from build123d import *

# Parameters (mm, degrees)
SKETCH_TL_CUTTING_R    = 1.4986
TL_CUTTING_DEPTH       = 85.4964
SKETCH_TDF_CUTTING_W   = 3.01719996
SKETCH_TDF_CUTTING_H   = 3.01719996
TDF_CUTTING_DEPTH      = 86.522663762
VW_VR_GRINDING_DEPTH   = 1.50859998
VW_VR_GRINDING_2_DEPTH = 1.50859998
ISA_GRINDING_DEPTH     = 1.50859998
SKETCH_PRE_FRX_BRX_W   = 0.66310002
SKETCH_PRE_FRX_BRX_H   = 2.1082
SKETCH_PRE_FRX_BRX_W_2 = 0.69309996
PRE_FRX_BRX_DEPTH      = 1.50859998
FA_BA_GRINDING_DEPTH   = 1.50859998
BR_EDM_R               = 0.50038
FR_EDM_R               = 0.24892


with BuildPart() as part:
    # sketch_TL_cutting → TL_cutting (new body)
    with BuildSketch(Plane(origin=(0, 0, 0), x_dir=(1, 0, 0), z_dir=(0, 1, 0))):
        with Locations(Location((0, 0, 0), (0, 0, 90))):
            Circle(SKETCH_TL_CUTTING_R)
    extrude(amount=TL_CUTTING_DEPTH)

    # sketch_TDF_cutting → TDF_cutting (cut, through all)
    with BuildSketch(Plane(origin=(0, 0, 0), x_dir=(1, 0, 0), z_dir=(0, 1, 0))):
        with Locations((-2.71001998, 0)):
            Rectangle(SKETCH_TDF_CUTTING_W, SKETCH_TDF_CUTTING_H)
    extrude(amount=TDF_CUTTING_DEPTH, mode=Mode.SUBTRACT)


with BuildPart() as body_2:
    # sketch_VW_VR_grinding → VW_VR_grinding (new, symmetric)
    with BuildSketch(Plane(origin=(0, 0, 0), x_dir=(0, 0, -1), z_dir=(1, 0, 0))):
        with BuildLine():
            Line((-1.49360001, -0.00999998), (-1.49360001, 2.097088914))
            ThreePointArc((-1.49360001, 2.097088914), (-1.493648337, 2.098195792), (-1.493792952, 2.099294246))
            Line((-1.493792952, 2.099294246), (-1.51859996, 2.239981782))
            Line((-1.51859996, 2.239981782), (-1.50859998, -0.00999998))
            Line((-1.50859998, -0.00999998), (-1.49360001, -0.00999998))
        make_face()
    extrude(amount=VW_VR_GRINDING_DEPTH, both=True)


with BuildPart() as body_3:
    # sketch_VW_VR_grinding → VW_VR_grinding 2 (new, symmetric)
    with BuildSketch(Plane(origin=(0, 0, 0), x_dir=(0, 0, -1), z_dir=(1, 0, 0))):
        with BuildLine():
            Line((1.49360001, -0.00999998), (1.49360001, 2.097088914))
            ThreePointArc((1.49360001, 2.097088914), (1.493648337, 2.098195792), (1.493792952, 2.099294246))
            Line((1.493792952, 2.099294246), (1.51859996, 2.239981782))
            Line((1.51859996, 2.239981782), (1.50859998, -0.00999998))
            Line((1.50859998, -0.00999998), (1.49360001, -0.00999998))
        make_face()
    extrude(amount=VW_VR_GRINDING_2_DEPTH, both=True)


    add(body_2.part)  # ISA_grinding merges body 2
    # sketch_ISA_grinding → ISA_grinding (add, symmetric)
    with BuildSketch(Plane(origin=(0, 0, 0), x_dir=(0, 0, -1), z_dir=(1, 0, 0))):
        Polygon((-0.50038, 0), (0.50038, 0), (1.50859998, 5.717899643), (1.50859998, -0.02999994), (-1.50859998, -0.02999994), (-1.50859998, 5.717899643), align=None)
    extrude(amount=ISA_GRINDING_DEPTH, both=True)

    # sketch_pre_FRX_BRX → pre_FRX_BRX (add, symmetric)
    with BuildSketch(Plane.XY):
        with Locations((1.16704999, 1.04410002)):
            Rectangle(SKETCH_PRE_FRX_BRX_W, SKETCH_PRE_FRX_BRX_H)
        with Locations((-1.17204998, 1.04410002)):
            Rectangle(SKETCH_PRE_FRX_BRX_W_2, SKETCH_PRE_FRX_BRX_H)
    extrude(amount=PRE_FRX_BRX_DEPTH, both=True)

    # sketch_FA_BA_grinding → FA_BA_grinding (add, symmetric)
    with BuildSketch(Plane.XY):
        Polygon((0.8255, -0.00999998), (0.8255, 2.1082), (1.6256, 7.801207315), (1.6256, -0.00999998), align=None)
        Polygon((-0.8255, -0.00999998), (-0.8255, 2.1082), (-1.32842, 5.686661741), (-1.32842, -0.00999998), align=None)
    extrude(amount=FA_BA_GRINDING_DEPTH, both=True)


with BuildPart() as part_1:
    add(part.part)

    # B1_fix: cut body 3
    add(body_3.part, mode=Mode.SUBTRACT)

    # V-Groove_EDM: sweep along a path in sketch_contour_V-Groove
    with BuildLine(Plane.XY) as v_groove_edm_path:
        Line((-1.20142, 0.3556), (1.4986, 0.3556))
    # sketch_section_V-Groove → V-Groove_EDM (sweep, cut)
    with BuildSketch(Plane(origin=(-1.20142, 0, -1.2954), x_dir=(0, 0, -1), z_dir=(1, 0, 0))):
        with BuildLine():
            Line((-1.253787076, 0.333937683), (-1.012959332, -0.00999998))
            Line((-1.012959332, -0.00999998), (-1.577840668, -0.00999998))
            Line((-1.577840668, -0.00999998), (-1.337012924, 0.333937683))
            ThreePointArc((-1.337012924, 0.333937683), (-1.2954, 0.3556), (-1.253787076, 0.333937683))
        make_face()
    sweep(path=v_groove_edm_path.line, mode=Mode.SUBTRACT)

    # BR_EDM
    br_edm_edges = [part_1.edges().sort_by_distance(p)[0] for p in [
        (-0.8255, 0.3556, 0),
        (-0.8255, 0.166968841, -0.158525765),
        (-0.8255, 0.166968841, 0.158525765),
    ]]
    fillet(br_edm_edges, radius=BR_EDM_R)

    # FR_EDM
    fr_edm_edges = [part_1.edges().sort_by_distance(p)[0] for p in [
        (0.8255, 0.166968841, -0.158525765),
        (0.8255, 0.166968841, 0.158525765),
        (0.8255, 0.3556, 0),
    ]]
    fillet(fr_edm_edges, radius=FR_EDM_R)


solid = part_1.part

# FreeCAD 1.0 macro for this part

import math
import FreeCAD as App
import Part
import Sketcher
from FreeCAD import Vector
Q = App.Units.Quantity


def edges_at(feature, points):
    """Names of the edges that pass closest to the given points."""
    edges = feature.Shape.Edges
    near = lambda p: min(range(len(edges)), key=lambda i: edges[i].distToShape(Part.Vertex(*p))[0])
    return sorted({f"Edge{near(p) + 1}" for p in points})


def add_polygon(sketch, points):
    """Adds a closed chain of lines whose ends are joined by coincident constraints."""
    first, n = sketch.GeometryCount, len(points)
    for a, b in zip(points, points[1:] + points[:1]):
        sketch.addGeometry(Part.LineSegment(App.Vector(*a, 0), App.Vector(*b, 0)), False)
    for i in range(n):
        sketch.addConstraint(Sketcher.Constraint("Coincident", first + i, 2, first + (i + 1) % n, 1))

doc = App.newDocument("Part")
params = doc.addObject("Spreadsheet::Sheet", "Params")
for row, (alias, value) in enumerate([
    ("sketch1_diameter", "0.118 in"),
    ("pad1_length", "3.366 in"),
    ("pad2_length", "3.0172 mm"),
    ("pad3_length", "3.0172 mm"),
    ("pad4_length", "3.0172 mm"),
    ("sketch6_height", "0.083 in"),
    ("pad5_length", "3.0172 mm"),
    ("pad6_length", "3.0172 mm"),
    ("sketch8_radius", "0.002 in"),
    ("fillet_radius", "0.0197 in"),
    ("fillet2_radius", "0.0098 in"),
], start=1):
    params.set(f"A{row}", alias)
    params.set(f"B{row}", "=" + value)
    params.setAlias(f"B{row}", alias)

body = doc.addObject("PartDesign::Body", "Body")

# Sketch on XZ plane
sketch1 = doc.addObject("Sketcher::SketchObject", "Sketch")
body.addObject(sketch1)
sketch1.AttachmentSupport = (doc.XZ_Plane, [""])
sketch1.MapMode = "FlatFace"
sketch1.addGeometry(Part.Circle(Vector(0, 0, 0), Vector(0, 0, 1), 1.5), False)
sketch1.addConstraint([
    Sketcher.Constraint("Coincident", 0, 3, -1, 1),
    Sketcher.Constraint("Diameter", 0, Q("0.118 in")),
])
sketch1.setExpression("Constraints[1]", "Params.sketch1_diameter")
pad1 = doc.addObject("PartDesign::Pad", "Pad")
body.addObject(pad1)
pad1.Profile = sketch1
pad1.setExpression("Length", "Params.pad1_length")
pad1.Reversed = True

# Sketch on XZ plane
sketch2 = doc.addObject("Sketcher::SketchObject", "Sketch001")
body.addObject(sketch2)
sketch2.AttachmentSupport = (doc.XZ_Plane, [""])
sketch2.MapMode = "FlatFace"
add_polygon(sketch2, [(-4.2, -1.5), (-4.2, 1.5), (-1.2, 1.5), (-1.2, -1.5)])  # lines 0-3
sketch2.addConstraint([
    Sketcher.Constraint("Vertical", 0),
    Sketcher.Constraint("Horizontal", 1),
    Sketcher.Constraint("Vertical", 2),
    Sketcher.Constraint("Horizontal", 3),
    Sketcher.Constraint("Equal", 3, 0),
    Sketcher.Constraint("DistanceX", 1, 1, 1, 2, Q("3.0172 mm")),
    Sketcher.Constraint("DistanceX", 1, 2, -1, 1, Q("0.0473 in")),
    Sketcher.Constraint("DistanceY", -1, 1, 0, 2, Q("1.5086 mm")),
])
pocket1 = doc.addObject("PartDesign::Pocket", "Pocket")
body.addObject(pocket1)
pocket1.Profile = sketch2
pocket1.Type = "ThroughAll"
body2 = doc.addObject("PartDesign::Body", "Body001")

# Sketch on YZ plane
sketch3 = doc.addObject("Sketcher::SketchObject", "Sketch002")
body2.addObject(sketch3)
sketch3.AttachmentSupport = (doc.getObject("YZ_Plane001"), [""])
sketch3.MapMode = "FlatFace"
sketch3.addGeometry([
    Part.LineSegment(Vector(-0.01, 1.4936, 0), Vector(2.0971, 1.4936, 0)),  # 0
    Part.ArcOfCircle(Part.Circle(Vector(2.0971, 1.5063, 0), Vector(0, 0, 1), 0.0127), math.radians(-90), math.radians(-80)),  # 1
    Part.LineSegment(Vector(2.0993, 1.4938, 0), Vector(2.24, 1.5186, 0)),  # 2
    Part.LineSegment(Vector(2.24, 1.5186, 0), Vector(-0.01, 1.5086, 0)),  # 3
    Part.LineSegment(Vector(-0.01, 1.5086, 0), Vector(-0.01, 1.4936, 0)),  # 4
], False)
sketch3.addConstraint([
    Sketcher.Constraint("Tangent", 0, 2, 1, 1),
    Sketcher.Constraint("Tangent", 1, 2, 2, 1),
    Sketcher.Constraint("Coincident", 2, 2, 3, 1),
    Sketcher.Constraint("Coincident", 3, 2, 4, 1),
    Sketcher.Constraint("Coincident", 4, 2, 0, 1),
    Sketcher.Constraint("Horizontal", 0),
    Sketcher.Constraint("Vertical", 4),
    Sketcher.Constraint("Angle", 2, Q("10 deg")),
    Sketcher.Constraint("Radius", 1, Q("0.0005 in")),
    Sketcher.Constraint("DistanceY", 4, 2, 4, 1, Q("0.015 mm")),
    Sketcher.Constraint("DistanceX", 0, 1, 0, 2, Q("2.107089 mm")),
    Sketcher.Constraint("DistanceY", -1, 1, 1, 3, Q("1.5063 mm")),
    Sketcher.Constraint("DistanceY", -1, 1, 2, 2, Q("1.5186 mm")),
    Sketcher.Constraint("DistanceX", 3, 2, -1, 1, Q("0.01 mm")),
])
pad2 = doc.addObject("PartDesign::Pad", "Pad001")
body2.addObject(pad2)
pad2.Profile = sketch3
pad2.setExpression("Length", "Params.pad2_length")
pad2.Midplane = True
body3 = doc.addObject("PartDesign::Body", "Body002")
body3.AllowCompound = True

# Sketch on YZ plane
sketch4 = doc.addObject("Sketcher::SketchObject", "Sketch003")
body3.addObject(sketch4)
sketch4.AttachmentSupport = (doc.getObject("YZ_Plane002"), [""])
sketch4.MapMode = "FlatFace"
sketch4.addGeometry([
    Part.LineSegment(Vector(2.0971, -1.4936, 0), Vector(-0.01, -1.4936, 0)),  # 0
    Part.LineSegment(Vector(-0.01, -1.4936, 0), Vector(-0.01, -1.5086, 0)),  # 1
    Part.LineSegment(Vector(-0.01, -1.5086, 0), Vector(2.24, -1.5186, 0)),  # 2
    Part.LineSegment(Vector(2.24, -1.5186, 0), Vector(2.0993, -1.4938, 0)),  # 3
    Part.ArcOfCircle(Part.Circle(Vector(2.0971, -1.5063, 0), Vector(0, 0, 1), 0.0127), math.radians(80), math.radians(90)),  # 4
], False)
sketch4.addConstraint([
    Sketcher.Constraint("Coincident", 0, 2, 1, 1),
    Sketcher.Constraint("Coincident", 1, 2, 2, 1),
    Sketcher.Constraint("Coincident", 2, 2, 3, 1),
    Sketcher.Constraint("Tangent", 3, 2, 4, 1),
    Sketcher.Constraint("Tangent", 4, 2, 0, 1),
    Sketcher.Constraint("Horizontal", 0),
    Sketcher.Constraint("Vertical", 1),
    Sketcher.Constraint("Angle", 3, Q("170 deg")),
    Sketcher.Constraint("Radius", 4, Q("0.0005 in")),
    Sketcher.Constraint("DistanceY", 1, 2, 1, 1, Q("0.015 mm")),
    Sketcher.Constraint("DistanceX", 0, 2, 0, 1, Q("2.107089 mm")),
    Sketcher.Constraint("DistanceY", 4, 3, -1, 1, Q("1.5063 mm")),
    Sketcher.Constraint("DistanceX", 0, 2, -1, 1, Q("0.01 mm")),
    Sketcher.Constraint("DistanceY", 2, 2, -1, 1, Q("1.5186 mm")),
])
pad3 = doc.addObject("PartDesign::Pad", "Pad002")
body3.addObject(pad3)
pad3.Profile = sketch4
pad3.setExpression("Length", "Params.pad3_length")
pad3.Midplane = True
doc.recompute()

boolean = doc.addObject("PartDesign::Boolean", "Boolean")
body3.addObject(boolean)
boolean.Type = "Fuse"
boolean.addObjects([body2])

# Sketch on YZ plane
sketch5 = doc.addObject("Sketcher::SketchObject", "Sketch004")
body3.addObject(sketch5)
sketch5.AttachmentSupport = (doc.getObject("YZ_Plane002"), [""])
sketch5.MapMode = "FlatFace"
add_polygon(sketch5, [(0, -0.5), (0, 0.5), (5.7, 1.5), (0, 1.5), (0, -1.5), (5.7, -1.5)])  # lines 0-5
sketch5.addConstraint([
    Sketcher.Constraint("Vertical", 0),
    Sketcher.Constraint("Horizontal", 2),
    Sketcher.Constraint("Vertical", 3),
    Sketcher.Constraint("Horizontal", 4),
    Sketcher.Constraint("Symmetric", 0, 2, 5, 2, -1, 1),
    Sketcher.Constraint("Symmetric", 1, 2, 4, 2, -1),
    Sketcher.Constraint("Angle", 1, Q("10 deg")),
    Sketcher.Constraint("DistanceY", 0, 1, 0, 2, Q("0.0394 in")),
    Sketcher.Constraint("DistanceX", 2, 2, 2, 1, Q("5.7479 mm")),
    Sketcher.Constraint("DistanceY", 3, 2, 3, 1, Q("3.0172 mm")),
])
pad4 = doc.addObject("PartDesign::Pad", "Pad003")
body3.addObject(pad4)
pad4.Profile = sketch5
pad4.setExpression("Length", "Params.pad4_length")
pad4.Midplane = True

# Sketch on XY plane
sketch6 = doc.addObject("Sketcher::SketchObject", "Sketch005")
body3.addObject(sketch6)
sketch6.AttachmentSupport = (doc.getObject("XY_Plane002"), [""])
sketch6.MapMode = "FlatFace"
add_polygon(sketch6, [(0.8, 2.1), (0.8, 0), (1.5, 0), (1.5, 2.1)])  # lines 0-3
add_polygon(sketch6, [(-1.5, 2.1), (-1.5, 0), (-0.8, 0), (-0.8, 2.1)])  # lines 4-7
sketch6.addConstraint([
    Sketcher.Constraint("Vertical", 0),
    Sketcher.Constraint("Horizontal", 1),
    Sketcher.Constraint("Vertical", 2),
    Sketcher.Constraint("Horizontal", 3),
    Sketcher.Constraint("Vertical", 4),
    Sketcher.Constraint("Horizontal", 5),
    Sketcher.Constraint("Vertical", 6),
    Sketcher.Constraint("Horizontal", 7),
    Sketcher.Constraint("Horizontal", 1, 2, 4, 2),
    Sketcher.Constraint("Horizontal", 3, 2, 6, 2),
    Sketcher.Constraint("DistanceY", 0, 2, 0, 1, Q("0.083 in")),
    Sketcher.Constraint("DistanceX", -1, 1, 1, 2, Q("0.059 in")),
    Sketcher.Constraint("DistanceX", 1, 1, 1, 2, Q("0.6631 mm")),
    Sketcher.Constraint("DistanceX", 5, 1, 5, 2, Q("0.6931 mm")),
    Sketcher.Constraint("DistanceX", 5, 2, -1, 1, Q("0.0325 in")),
    Sketcher.Constraint("DistanceY", 0, 2, -1, 1, Q("0.01 mm")),
])
sketch6.setExpression("Constraints[18]", "Params.sketch6_height")
pad5 = doc.addObject("PartDesign::Pad", "Pad004")
body3.addObject(pad5)
pad5.Profile = sketch6
pad5.setExpression("Length", "Params.pad5_length")
pad5.Midplane = True

# Sketch on XY plane
sketch7 = doc.addObject("Sketcher::SketchObject", "Sketch006")
body3.addObject(sketch7)
sketch7.AttachmentSupport = (doc.getObject("XY_Plane002"), [""])
sketch7.MapMode = "FlatFace"
add_polygon(sketch7, [(0.8, 2.1), (0.8, 0), (1.6, 0), (1.6, 7.8)])  # lines 0-3
add_polygon(sketch7, [(-0.8, 0), (-0.8, 2.1), (-1.3, 5.7), (-1.3, 0)])  # lines 4-7
sketch7.addConstraint([
    Sketcher.Constraint("Vertical", 0),
    Sketcher.Constraint("Horizontal", 1),
    Sketcher.Constraint("Vertical", 2),
    Sketcher.Constraint("Vertical", 4),
    Sketcher.Constraint("Vertical", 6),
    Sketcher.Constraint("Horizontal", 7),
    Sketcher.Constraint("Symmetric", 3, 2, 4, 2, -2),
    Sketcher.Constraint("Horizontal", 1, 2, 6, 2),
    Sketcher.Constraint("Angle", 3, Q("-98 deg")),
    Sketcher.Constraint("Angle", 5, Q("98 deg")),
    Sketcher.Constraint("DistanceX", 1, 1, 1, 2, Q("0.0315 in")),
    Sketcher.Constraint("DistanceX", 7, 1, 7, 2, Q("0.0198 in")),
    Sketcher.Constraint("DistanceX", -1, 1, 1, 2, Q("0.064 in")),
    Sketcher.Constraint("DistanceY", -1, 1, 3, 2, Q("0.083 in")),
    Sketcher.Constraint("DistanceY", 0, 2, 0, 1, Q("2.1182 mm")),
])
pad6 = doc.addObject("PartDesign::Pad", "Pad005")
body3.addObject(pad6)
pad6.Profile = sketch7
pad6.setExpression("Length", "Params.pad6_length")
pad6.Midplane = True
doc.recompute()

boolean2 = doc.addObject("PartDesign::Boolean", "Boolean001")
body.addObject(boolean2)
boolean2.Type = "Cut"
boolean2.addObjects([body3])

# Sketch on YZ plane
sketch8 = doc.addObject("Sketcher::SketchObject", "Sketch007")
body.addObject(sketch8)
sketch8.AttachmentSupport = (doc.YZ_Plane, [""])
sketch8.MapMode = "FlatFace"
sketch8.AttachmentOffset = App.Placement(Vector(0, 0, -0.0473 * 25.4), App.Rotation())
sketch8.addGeometry([
    Part.LineSegment(Vector(-0.01, -0.28, 0), Vector(0.33, -0.04, 0)),
    Part.ArcOfCircle(Part.Circle(Vector(0.3, 0, 0), Vector(0, 0, 1), 0.05), math.radians(-55), math.radians(55)),
    Part.LineSegment(Vector(0.33, 0.04, 0), Vector(-0.01, 0.28, 0)),
    Part.LineSegment(Vector(-0.01, 0.28, 0), Vector(-0.01, -0.28, 0)),
], False)
sketch8.addConstraint([
    Sketcher.Constraint("Tangent", 0, 2, 1, 1),
    Sketcher.Constraint("Tangent", 1, 2, 2, 1),
    Sketcher.Constraint("Coincident", 2, 2, 3, 1),
    Sketcher.Constraint("Coincident", 3, 2, 0, 1),
    Sketcher.Constraint("Vertical", 3),
    Sketcher.Constraint("Symmetric", 0, 2, 1, 2, -1),
    Sketcher.Constraint("Angle", 0, Q("35 deg")),
    Sketcher.Constraint("Radius", 1, Q("0.002 in")),
    Sketcher.Constraint("DistanceX", -1, 1, 1, 3, Q("0.012 in")),
    Sketcher.Constraint("DistanceY", 3, 2, 3, 1, Q("0.564881 mm")),
])
sketch8.setExpression("Constraints[7]", "Params.sketch8_radius")

# Sketch on XY plane
sketch9 = doc.addObject("Sketcher::SketchObject", "Sketch008")
body.addObject(sketch9)
sketch9.AttachmentSupport = (doc.XY_Plane, [""])
sketch9.MapMode = "FlatFace"
sketch9.addGeometry(Part.LineSegment(Vector(-1.2, 0.4, 0), Vector(1.5, 0.4, 0)), False)
sketch9.addConstraint([
    Sketcher.Constraint("Horizontal", 0),
    Sketcher.Constraint("DistanceX", 0, 1, 0, 2, Q("0.1063 in")),
    Sketcher.Constraint("DistanceY", -1, 1, 0, 1, Q("0.014 in")),
    Sketcher.Constraint("DistanceX", -1, 1, 0, 2, Q("0.059 in")),
])
doc.recompute()

subtractivepipe = doc.addObject("PartDesign::SubtractivePipe", "SubtractivePipe")
body.addObject(subtractivepipe)
subtractivepipe.Profile = sketch8
subtractivepipe.Spine = (sketch9, ["Edge1"])
doc.recompute()

fillet = doc.addObject("PartDesign::Fillet", "Fillet")
body.addObject(fillet)
fillet.Base = (subtractivepipe, edges_at(subtractivepipe, [(-0.826, 0.356, 0), (-0.826, 0.167, -0.159), (-0.826, 0.167, 0.159)]))
fillet.setExpression("Radius", "Params.fillet_radius")
doc.recompute()

fillet2 = doc.addObject("PartDesign::Fillet", "Fillet001")
body.addObject(fillet2)
fillet2.Base = (fillet, edges_at(fillet, [(0.826, 0.167, -0.159), (0.826, 0.167, 0.159), (0.826, 0.356, 0)]))
fillet2.setExpression("Radius", "Params.fillet2_radius")

doc.recompute()
